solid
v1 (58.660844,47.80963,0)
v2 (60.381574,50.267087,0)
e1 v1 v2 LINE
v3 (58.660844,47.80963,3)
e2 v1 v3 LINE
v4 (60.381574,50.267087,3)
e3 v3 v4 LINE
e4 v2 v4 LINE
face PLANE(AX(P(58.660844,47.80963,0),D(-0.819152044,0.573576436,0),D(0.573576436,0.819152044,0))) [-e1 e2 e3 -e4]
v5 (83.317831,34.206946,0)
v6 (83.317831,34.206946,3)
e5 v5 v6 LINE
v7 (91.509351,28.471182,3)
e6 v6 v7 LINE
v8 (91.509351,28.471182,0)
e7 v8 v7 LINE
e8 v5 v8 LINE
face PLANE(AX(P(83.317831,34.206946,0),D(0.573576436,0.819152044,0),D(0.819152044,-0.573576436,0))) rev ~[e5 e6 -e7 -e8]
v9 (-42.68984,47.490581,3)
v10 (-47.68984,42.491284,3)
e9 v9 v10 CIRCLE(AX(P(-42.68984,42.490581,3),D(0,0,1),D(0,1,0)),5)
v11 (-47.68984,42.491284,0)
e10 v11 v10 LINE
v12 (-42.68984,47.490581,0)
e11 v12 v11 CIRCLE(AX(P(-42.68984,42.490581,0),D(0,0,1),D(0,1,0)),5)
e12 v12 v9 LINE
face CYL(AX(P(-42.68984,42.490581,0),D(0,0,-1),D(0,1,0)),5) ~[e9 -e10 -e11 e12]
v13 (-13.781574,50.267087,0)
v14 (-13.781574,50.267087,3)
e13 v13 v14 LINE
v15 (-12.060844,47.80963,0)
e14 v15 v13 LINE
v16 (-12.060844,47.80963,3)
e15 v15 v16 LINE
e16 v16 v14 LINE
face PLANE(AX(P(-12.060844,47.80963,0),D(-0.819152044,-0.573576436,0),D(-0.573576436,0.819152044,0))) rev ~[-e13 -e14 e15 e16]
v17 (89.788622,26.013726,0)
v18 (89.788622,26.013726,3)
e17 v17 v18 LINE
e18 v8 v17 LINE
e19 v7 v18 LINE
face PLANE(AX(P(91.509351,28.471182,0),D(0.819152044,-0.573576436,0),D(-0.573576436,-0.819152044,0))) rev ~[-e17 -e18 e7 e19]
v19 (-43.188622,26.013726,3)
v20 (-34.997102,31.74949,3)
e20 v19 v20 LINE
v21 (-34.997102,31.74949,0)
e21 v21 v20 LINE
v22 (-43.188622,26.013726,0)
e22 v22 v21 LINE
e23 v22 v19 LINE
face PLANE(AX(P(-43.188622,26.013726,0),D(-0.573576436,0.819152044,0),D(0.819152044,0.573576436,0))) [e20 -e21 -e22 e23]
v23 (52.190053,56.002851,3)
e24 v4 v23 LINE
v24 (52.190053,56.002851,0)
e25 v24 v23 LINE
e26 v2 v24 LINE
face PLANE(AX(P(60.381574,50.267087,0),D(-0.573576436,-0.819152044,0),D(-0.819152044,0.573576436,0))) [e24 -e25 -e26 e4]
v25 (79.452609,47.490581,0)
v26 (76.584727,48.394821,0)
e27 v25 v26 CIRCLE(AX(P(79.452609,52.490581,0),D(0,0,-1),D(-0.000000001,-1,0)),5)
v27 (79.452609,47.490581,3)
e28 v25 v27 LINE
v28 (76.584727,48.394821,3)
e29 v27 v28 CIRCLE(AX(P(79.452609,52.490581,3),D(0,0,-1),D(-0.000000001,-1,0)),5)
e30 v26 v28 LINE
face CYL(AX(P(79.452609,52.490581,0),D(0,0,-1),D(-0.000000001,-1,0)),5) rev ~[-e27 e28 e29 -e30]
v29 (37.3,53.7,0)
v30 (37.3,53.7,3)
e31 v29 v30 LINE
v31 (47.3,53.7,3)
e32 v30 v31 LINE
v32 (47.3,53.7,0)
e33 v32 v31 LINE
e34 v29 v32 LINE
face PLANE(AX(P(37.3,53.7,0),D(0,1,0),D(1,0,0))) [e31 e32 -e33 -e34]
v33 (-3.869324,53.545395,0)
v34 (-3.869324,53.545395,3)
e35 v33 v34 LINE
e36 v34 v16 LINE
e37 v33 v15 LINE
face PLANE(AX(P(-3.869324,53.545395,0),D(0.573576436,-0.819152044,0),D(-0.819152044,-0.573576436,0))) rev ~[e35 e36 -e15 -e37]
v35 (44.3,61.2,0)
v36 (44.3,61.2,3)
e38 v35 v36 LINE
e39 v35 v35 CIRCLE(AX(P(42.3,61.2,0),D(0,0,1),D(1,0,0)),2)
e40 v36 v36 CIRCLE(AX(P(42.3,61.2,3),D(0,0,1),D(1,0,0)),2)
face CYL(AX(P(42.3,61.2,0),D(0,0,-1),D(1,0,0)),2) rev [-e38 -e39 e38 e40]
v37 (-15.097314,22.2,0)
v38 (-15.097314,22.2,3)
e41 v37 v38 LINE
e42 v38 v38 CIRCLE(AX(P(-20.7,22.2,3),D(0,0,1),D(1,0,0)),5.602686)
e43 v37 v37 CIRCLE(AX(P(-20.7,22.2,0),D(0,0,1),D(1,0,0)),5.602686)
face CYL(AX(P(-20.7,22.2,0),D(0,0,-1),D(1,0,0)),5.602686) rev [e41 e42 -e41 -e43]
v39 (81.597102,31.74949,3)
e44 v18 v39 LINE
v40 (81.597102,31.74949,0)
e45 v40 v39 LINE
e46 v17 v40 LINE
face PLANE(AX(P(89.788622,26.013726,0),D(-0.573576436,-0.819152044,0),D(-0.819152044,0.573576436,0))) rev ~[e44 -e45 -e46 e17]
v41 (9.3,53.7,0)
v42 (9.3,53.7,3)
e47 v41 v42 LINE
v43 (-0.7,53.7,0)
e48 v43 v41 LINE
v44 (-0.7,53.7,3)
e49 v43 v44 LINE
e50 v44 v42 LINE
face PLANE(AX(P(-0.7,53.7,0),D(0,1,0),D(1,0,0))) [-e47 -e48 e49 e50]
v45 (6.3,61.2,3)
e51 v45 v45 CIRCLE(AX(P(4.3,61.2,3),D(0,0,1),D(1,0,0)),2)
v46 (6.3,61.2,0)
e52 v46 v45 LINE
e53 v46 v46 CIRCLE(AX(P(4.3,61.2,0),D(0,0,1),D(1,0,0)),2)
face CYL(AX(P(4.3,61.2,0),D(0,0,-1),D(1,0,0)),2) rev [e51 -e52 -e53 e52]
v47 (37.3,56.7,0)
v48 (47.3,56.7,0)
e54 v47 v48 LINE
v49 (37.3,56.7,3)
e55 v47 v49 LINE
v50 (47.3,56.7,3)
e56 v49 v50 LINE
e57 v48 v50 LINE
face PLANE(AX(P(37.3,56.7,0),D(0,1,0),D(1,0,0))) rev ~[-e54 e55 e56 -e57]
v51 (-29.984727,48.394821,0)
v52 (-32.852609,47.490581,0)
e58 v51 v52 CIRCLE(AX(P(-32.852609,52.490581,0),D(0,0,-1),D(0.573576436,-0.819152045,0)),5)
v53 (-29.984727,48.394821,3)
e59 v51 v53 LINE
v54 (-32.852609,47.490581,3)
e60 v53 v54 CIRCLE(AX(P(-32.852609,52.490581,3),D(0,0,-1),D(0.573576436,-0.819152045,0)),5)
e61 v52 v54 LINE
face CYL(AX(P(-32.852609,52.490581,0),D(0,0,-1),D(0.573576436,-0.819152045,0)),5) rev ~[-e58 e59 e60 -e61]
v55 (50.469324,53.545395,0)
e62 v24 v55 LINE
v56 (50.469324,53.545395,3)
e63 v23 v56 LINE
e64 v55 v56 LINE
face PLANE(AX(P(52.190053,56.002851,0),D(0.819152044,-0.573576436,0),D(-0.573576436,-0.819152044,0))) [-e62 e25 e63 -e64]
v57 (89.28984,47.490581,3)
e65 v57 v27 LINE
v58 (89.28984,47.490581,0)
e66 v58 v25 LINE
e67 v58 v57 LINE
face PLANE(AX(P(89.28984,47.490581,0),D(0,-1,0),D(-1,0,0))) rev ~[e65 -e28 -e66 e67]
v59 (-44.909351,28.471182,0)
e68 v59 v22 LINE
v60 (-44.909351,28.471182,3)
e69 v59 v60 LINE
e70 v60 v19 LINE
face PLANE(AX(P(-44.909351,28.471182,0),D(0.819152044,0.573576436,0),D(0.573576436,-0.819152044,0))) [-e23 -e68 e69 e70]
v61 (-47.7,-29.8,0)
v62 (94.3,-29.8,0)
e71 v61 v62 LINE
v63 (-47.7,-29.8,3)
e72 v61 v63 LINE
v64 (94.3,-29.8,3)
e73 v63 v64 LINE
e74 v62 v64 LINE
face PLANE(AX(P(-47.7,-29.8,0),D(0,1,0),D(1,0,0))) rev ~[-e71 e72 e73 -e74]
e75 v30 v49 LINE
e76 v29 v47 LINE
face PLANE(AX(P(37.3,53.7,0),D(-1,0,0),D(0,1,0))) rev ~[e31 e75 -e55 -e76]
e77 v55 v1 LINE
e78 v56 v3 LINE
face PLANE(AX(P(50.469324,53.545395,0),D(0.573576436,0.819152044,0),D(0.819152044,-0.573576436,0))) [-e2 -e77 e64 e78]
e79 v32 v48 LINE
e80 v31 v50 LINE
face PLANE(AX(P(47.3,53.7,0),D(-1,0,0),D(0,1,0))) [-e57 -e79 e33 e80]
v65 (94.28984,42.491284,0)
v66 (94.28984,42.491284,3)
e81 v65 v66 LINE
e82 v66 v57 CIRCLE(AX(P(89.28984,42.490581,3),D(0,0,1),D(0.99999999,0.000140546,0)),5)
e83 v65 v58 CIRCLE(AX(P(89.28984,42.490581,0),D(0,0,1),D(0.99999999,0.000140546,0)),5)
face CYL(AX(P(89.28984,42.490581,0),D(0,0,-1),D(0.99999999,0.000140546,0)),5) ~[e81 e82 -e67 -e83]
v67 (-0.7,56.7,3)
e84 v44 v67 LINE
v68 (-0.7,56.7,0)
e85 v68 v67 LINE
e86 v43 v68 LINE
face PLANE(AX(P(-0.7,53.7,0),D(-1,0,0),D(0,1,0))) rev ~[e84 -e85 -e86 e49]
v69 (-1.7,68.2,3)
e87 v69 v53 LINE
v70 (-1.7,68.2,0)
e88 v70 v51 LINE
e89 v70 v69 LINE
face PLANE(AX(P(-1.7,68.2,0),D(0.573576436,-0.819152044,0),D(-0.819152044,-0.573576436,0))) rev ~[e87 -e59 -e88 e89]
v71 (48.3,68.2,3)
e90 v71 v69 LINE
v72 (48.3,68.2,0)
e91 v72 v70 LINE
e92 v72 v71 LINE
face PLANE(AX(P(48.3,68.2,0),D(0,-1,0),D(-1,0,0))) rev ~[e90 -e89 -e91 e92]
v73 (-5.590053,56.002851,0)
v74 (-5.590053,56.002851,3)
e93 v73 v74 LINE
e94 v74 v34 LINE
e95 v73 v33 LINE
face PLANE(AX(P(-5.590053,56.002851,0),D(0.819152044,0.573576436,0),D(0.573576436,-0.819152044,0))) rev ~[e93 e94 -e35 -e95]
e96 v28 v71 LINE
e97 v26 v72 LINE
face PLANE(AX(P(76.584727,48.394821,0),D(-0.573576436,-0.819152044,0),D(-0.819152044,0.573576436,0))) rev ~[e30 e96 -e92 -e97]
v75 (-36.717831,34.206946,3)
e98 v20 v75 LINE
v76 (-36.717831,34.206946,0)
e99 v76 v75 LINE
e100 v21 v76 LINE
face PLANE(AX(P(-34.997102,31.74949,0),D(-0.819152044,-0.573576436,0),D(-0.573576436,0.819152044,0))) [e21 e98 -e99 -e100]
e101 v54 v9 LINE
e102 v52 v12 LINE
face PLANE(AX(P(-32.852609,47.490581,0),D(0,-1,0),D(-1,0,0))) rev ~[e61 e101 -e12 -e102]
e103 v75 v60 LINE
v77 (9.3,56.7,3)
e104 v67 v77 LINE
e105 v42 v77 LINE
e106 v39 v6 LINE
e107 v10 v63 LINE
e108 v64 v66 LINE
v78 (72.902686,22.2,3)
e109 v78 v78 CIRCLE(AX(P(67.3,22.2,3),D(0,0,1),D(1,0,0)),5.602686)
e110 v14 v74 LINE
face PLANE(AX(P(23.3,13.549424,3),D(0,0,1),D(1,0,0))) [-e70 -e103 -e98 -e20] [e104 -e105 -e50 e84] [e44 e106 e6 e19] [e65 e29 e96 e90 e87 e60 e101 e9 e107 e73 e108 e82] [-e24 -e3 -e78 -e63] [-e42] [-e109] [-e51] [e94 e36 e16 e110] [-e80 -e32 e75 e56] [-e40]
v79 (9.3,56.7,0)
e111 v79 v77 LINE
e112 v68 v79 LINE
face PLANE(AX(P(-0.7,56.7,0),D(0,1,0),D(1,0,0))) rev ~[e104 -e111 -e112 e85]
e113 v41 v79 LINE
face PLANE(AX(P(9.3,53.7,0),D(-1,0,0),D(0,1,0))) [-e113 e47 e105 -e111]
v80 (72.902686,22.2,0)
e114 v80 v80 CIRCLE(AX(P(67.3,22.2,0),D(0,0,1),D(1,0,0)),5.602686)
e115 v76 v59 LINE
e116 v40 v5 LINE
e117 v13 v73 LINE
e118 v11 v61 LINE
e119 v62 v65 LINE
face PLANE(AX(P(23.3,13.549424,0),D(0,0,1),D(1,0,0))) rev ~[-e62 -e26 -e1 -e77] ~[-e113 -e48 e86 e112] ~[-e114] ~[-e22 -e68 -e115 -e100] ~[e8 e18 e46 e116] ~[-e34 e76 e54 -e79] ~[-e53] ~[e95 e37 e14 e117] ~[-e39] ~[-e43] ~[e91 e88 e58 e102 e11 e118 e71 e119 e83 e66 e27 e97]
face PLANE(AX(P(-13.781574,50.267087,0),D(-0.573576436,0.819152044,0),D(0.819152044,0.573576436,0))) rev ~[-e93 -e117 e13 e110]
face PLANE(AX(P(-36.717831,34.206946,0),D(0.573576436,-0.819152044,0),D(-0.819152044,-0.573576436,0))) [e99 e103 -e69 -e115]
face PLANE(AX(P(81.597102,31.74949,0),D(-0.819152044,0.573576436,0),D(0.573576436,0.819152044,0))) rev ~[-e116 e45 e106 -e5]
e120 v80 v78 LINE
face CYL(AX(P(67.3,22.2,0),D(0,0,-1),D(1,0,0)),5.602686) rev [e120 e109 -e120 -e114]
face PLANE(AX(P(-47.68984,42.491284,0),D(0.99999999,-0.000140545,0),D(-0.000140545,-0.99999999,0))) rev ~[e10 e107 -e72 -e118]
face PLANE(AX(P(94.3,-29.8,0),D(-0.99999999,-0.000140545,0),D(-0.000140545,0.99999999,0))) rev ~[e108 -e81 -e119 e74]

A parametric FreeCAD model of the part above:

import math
import FreeCAD as App
import Part
import Sketcher
Q = App.Units.Quantity

doc = App.newDocument("Part")
body = doc.addObject("PartDesign::Body", "Body")

# Sketch on XY plane
sketch1 = body.newObject("Sketcher::SketchObject", "Sketch")
sketch1.AttachmentSupport = (doc.getObject("XY_Plane"), [""])
sketch1.MapMode = "FlatFace"
sketch1.addGeometry([
    Part.LineSegment(App.Vector(-1.7, 68.2, 0), App.Vector(-30, 48.4, 0)),  # 0
    Part.ArcOfCircle(Part.Circle(App.Vector(-32.9, 52.5, 0), App.Vector(0, 0, 1), 5), math.radians(-90), math.radians(-55)),  # 1
    Part.LineSegment(App.Vector(-32.9, 47.5, 0), App.Vector(-42.7, 47.5, 0)),  # 2
    Part.ArcOfCircle(Part.Circle(App.Vector(-42.7, 42.5, 0), App.Vector(0, 0, 1), 5), math.radians(90), math.radians(180)),  # 3
    Part.LineSegment(App.Vector(-47.7, 42.5, 0), App.Vector(-47.7, -29.8, 0)),  # 4
    Part.LineSegment(App.Vector(-47.7, -29.8, 0), App.Vector(94.3, -29.8, 0)),  # 5
    Part.LineSegment(App.Vector(94.3, -29.8, 0), App.Vector(94.3, 42.5, 0)),  # 6
    Part.ArcOfCircle(Part.Circle(App.Vector(89.3, 42.5, 0), App.Vector(0, 0, 1), 5), math.radians(0), math.radians(90)),  # 7
    Part.LineSegment(App.Vector(89.3, 47.5, 0), App.Vector(79.5, 47.5, 0)),  # 8
    Part.ArcOfCircle(Part.Circle(App.Vector(79.5, 52.5, 0), App.Vector(0, 0, 1), 5), math.radians(-125), math.radians(-90)),  # 9
    Part.LineSegment(App.Vector(76.6, 48.4, 0), App.Vector(48.3, 68.2, 0)),  # 10
    Part.LineSegment(App.Vector(48.3, 68.2, 0), App.Vector(-1.7, 68.2, 0)),  # 11
    Part.Circle(App.Vector(-20.7, 22.2, 0), App.Vector(0, 0, 1), 5.6),  # 12
    Part.LineSegment(App.Vector(-36.7, 34.2, 0), App.Vector(-35, 31.7, 0)),  # 13
    Part.LineSegment(App.Vector(-35, 31.7, 0), App.Vector(-43.2, 26, 0)),  # 14
    Part.LineSegment(App.Vector(-43.2, 26, 0), App.Vector(-44.9, 28.5, 0)),  # 15
    Part.LineSegment(App.Vector(-44.9, 28.5, 0), App.Vector(-36.7, 34.2, 0)),  # 16
    Part.Circle(App.Vector(67.3, 22.2, 0), App.Vector(0, 0, 1), 5.6),  # 17
    Part.LineSegment(App.Vector(89.8, 26, 0), App.Vector(81.6, 31.7, 0)),  # 18
    Part.LineSegment(App.Vector(81.6, 31.7, 0), App.Vector(83.3, 34.2, 0)),  # 19
    Part.LineSegment(App.Vector(83.3, 34.2, 0), App.Vector(91.5, 28.5, 0)),  # 20
    Part.LineSegment(App.Vector(91.5, 28.5, 0), App.Vector(89.8, 26, 0)),  # 21
    Part.LineSegment(App.Vector(-3.9, 53.5, 0), App.Vector(-12.1, 47.8, 0)),  # 22
    Part.LineSegment(App.Vector(-12.1, 47.8, 0), App.Vector(-13.8, 50.3, 0)),  # 23
    Part.LineSegment(App.Vector(-13.8, 50.3, 0), App.Vector(-5.6, 56, 0)),  # 24
    Part.LineSegment(App.Vector(-5.6, 56, 0), App.Vector(-3.9, 53.5, 0)),  # 25
    Part.LineSegment(App.Vector(9.3, 53.7, 0), App.Vector(-0.7, 53.7, 0)),  # 26
    Part.LineSegment(App.Vector(-0.7, 53.7, 0), App.Vector(-0.7, 56.7, 0)),  # 27
    Part.LineSegment(App.Vector(-0.7, 56.7, 0), App.Vector(9.3, 56.7, 0)),  # 28
    Part.LineSegment(App.Vector(9.3, 56.7, 0), App.Vector(9.3, 53.7, 0)),  # 29
    Part.Circle(App.Vector(4.3, 61.2, 0), App.Vector(0, 0, 1), 2),  # 30
    Part.LineSegment(App.Vector(60.4, 50.3, 0), App.Vector(58.7, 47.8, 0)),  # 31
    Part.LineSegment(App.Vector(58.7, 47.8, 0), App.Vector(50.5, 53.5, 0)),  # 32
    Part.LineSegment(App.Vector(50.5, 53.5, 0), App.Vector(52.2, 56, 0)),  # 33
    Part.LineSegment(App.Vector(52.2, 56, 0), App.Vector(60.4, 50.3, 0)),  # 34
    Part.LineSegment(App.Vector(47.3, 53.7, 0), App.Vector(37.3, 53.7, 0)),  # 35
    Part.LineSegment(App.Vector(37.3, 53.7, 0), App.Vector(37.3, 56.7, 0)),  # 36
    Part.LineSegment(App.Vector(37.3, 56.7, 0), App.Vector(47.3, 56.7, 0)),  # 37
    Part.LineSegment(App.Vector(47.3, 56.7, 0), App.Vector(47.3, 53.7, 0)),  # 38
    Part.Circle(App.Vector(42.3, 61.2, 0), App.Vector(0, 0, 1), 2),  # 39
], False)
sketch1.addConstraint([
    Sketcher.Constraint("Tangent", 0, 2, 1, 2),
    Sketcher.Constraint("Tangent", 1, 1, 2, 1),
    Sketcher.Constraint("Tangent", 2, 2, 3, 1),
    Sketcher.Constraint("Tangent", 3, 2, 4, 1),
    Sketcher.Constraint("Coincident", 4, 2, 5, 1),
    Sketcher.Constraint("Coincident", 5, 2, 6, 1),
    Sketcher.Constraint("Tangent", 6, 2, 7, 1),
    Sketcher.Constraint("Tangent", 7, 2, 8, 1),
    Sketcher.Constraint("Tangent", 8, 2, 9, 2),
    Sketcher.Constraint("Tangent", 9, 1, 10, 1),
    Sketcher.Constraint("Coincident", 10, 2, 11, 1),
    Sketcher.Constraint("Coincident", 11, 2, 0, 1),
    Sketcher.Constraint("Coincident", 13, 2, 14, 1),
    Sketcher.Constraint("Coincident", 14, 2, 15, 1),
    Sketcher.Constraint("Coincident", 15, 2, 16, 1),
    Sketcher.Constraint("Coincident", 16, 2, 13, 1),
    Sketcher.Constraint("Coincident", 18, 2, 19, 1),
    Sketcher.Constraint("Coincident", 19, 2, 20, 1),
    Sketcher.Constraint("Coincident", 20, 2, 21, 1),
    Sketcher.Constraint("Coincident", 21, 2, 18, 1),
    Sketcher.Constraint("Coincident", 22, 2, 23, 1),
    Sketcher.Constraint("Coincident", 23, 2, 24, 1),
    Sketcher.Constraint("Coincident", 24, 2, 25, 1),
    Sketcher.Constraint("Coincident", 25, 2, 22, 1),
    Sketcher.Constraint("Coincident", 26, 2, 27, 1),
    Sketcher.Constraint("Coincident", 27, 2, 28, 1),
    Sketcher.Constraint("Coincident", 28, 2, 29, 1),
    Sketcher.Constraint("Coincident", 29, 2, 26, 1),
    Sketcher.Constraint("Coincident", 31, 2, 32, 1),
    Sketcher.Constraint("Coincident", 32, 2, 33, 1),
    Sketcher.Constraint("Coincident", 33, 2, 34, 1),
    Sketcher.Constraint("Coincident", 34, 2, 31, 1),
    Sketcher.Constraint("Coincident", 35, 2, 36, 1),
    Sketcher.Constraint("Coincident", 36, 2, 37, 1),
    Sketcher.Constraint("Coincident", 37, 2, 38, 1),
    Sketcher.Constraint("Coincident", 38, 2, 35, 1),
    Sketcher.Constraint("Horizontal", 2),
    Sketcher.Constraint("Horizontal", 5),
    Sketcher.Constraint("Horizontal", 8),
    Sketcher.Constraint("Horizontal", 11),
    Sketcher.Constraint("Horizontal", 26),
    Sketcher.Constraint("Vertical", 27),
    Sketcher.Constraint("Horizontal", 28),
    Sketcher.Constraint("Vertical", 29),
    Sketcher.Constraint("Horizontal", 35),
    Sketcher.Constraint("Vertical", 36),
    Sketcher.Constraint("Horizontal", 37),
    Sketcher.Constraint("Vertical", 38),
    Sketcher.Constraint("Equal", 1, 3),
    Sketcher.Constraint("Equal", 3, 7),
    Sketcher.Constraint("Equal", 7, 9),
    Sketcher.Constraint("Equal", 12, 17),
    Sketcher.Constraint("Equal", 30, 39),
    Sketcher.Constraint("Perpendicular", 0, 13),
    Sketcher.Constraint("Perpendicular", 13, 14),
    Sketcher.Constraint("Perpendicular", 14, 15),
    Sketcher.Constraint("Perpendicular", 15, 16),
    Sketcher.Constraint("Parallel", 10, 18),
    Sketcher.Constraint("Perpendicular", 18, 19),
    Sketcher.Constraint("Perpendicular", 19, 20),
    Sketcher.Constraint("Perpendicular", 20, 21),
    Sketcher.Constraint("Parallel", 16, 22),
    Sketcher.Constraint("Perpendicular", 22, 23),
    Sketcher.Constraint("Perpendicular", 23, 24),
    Sketcher.Constraint("Perpendicular", 24, 25),
    Sketcher.Constraint("Parallel", 21, 31),
    Sketcher.Constraint("Perpendicular", 31, 32),
    Sketcher.Constraint("Perpendicular", 32, 33),
    Sketcher.Constraint("Perpendicular", 33, 34),
    Sketcher.Constraint("Horizontal", 3, 3, 7, 3),
    Sketcher.Constraint("Horizontal", 12, 3, 17, 3),
    Sketcher.Constraint("Horizontal", 30, 3, 39, 3),
    Sketcher.Constraint("Horizontal", 3, 2, 6, 2),
    Sketcher.Constraint("Horizontal", 0, 2, 9, 1),
    Sketcher.Constraint("Horizontal", 13, 2, 18, 2),
    Sketcher.Constraint("Horizontal", 16, 2, 19, 2),
    Sketcher.Constraint("Horizontal", 15, 2, 20, 2),
    Sketcher.Constraint("Horizontal", 22, 2, 31, 2),
    Sketcher.Constraint("Horizontal", 25, 2, 32, 2),
    Sketcher.Constraint("Horizontal", 24, 2, 33, 2),
    Sketcher.Constraint("Horizontal", 29, 2, 35, 2),
    Sketcher.Constraint("Horizontal", 28, 2, 36, 2),
    Sketcher.Constraint("Equal", 2, 8),
    Sketcher.Constraint("Equal", 28, 35),
    Sketcher.Constraint("Equal", 20, 22),
    Sketcher.Constraint("Equal", 21, 23),
    Sketcher.Constraint("Diameter", 30, 4.0),
    Sketcher.Constraint("Radius", 1, 5.0),
    Sketcher.Constraint("DistanceX", 5, 1, 5, 2, 142.0),
    Sketcher.Constraint("DistanceX", 11, 2, 11, 1, 50.0),
    Sketcher.Constraint("DistanceX", 26, 2, 26, 1, 10.0),
    Sketcher.Constraint("DistanceY", 27, 1, 27, 2, 3.0),
    Sketcher.Constraint("Angle", 0, Q("-145 deg")),
    Sketcher.Constraint("Distance", 13, 3.0),
    Sketcher.Constraint("Distance", 14, 10.0),
    Sketcher.Constraint("DistanceX", 12, 3, 17, 3, 88.0),
    Sketcher.Constraint("DistanceX", 12, 3, 30, 3, 25.0),
    Sketcher.Constraint("DistanceY", 12, 3, 30, 3, 39.0),
    Sketcher.Constraint("DistanceX", 30, 3, 39, 3, 38.0),
    Sketcher.Constraint("DistanceX", 4, 2, 12, 3, 27.0),
    Sketcher.Constraint("DistanceY", 4, 2, 12, 3, 52.0),
    Sketcher.Constraint("DistanceY", 39, 3, 10, 2, 7.0),
    Sketcher.Constraint("DistanceX", 26, 2, 30, 3, 5.0),
    Sketcher.Constraint("DistanceX", 35, 2, 39, 3, 5.0),
    Sketcher.Constraint("DistanceX", 12, 3, -1, 1, 20.7),
    Sketcher.Constraint("DistanceY", -1, 1, 12, 3, 22.2),
    Sketcher.Constraint("DistanceY", -1, 1, 26, 2, 53.7),
    Sketcher.Constraint("Diameter", 12, 11.205371),
    Sketcher.Constraint("DistanceX", 2, 2, 2, 1, 9.837231),
    Sketcher.Constraint("DistanceX", 13, 2, -1, 1, 34.997102),
    Sketcher.Constraint("DistanceX", -1, 1, 18, 2, 81.597102),
    Sketcher.Constraint("DistanceY", 15, 2, 3, 3, 14.019399),
    Sketcher.Constraint("DistanceX", 1, 3, -1, 1, 32.852609),
    Sketcher.Constraint("DistanceY", -1, 1, 22, 2, 47.80963),
    Sketcher.Constraint("DistanceX", 22, 2, -1, 1, 12.060844),
    Sketcher.Constraint("DistanceX", -1, 1, 31, 2, 58.660844),
])
pad1 = body.newObject("PartDesign::Pad", "Pad")
pad1.Profile = sketch1
pad1.Length = 3

doc.recompute()
